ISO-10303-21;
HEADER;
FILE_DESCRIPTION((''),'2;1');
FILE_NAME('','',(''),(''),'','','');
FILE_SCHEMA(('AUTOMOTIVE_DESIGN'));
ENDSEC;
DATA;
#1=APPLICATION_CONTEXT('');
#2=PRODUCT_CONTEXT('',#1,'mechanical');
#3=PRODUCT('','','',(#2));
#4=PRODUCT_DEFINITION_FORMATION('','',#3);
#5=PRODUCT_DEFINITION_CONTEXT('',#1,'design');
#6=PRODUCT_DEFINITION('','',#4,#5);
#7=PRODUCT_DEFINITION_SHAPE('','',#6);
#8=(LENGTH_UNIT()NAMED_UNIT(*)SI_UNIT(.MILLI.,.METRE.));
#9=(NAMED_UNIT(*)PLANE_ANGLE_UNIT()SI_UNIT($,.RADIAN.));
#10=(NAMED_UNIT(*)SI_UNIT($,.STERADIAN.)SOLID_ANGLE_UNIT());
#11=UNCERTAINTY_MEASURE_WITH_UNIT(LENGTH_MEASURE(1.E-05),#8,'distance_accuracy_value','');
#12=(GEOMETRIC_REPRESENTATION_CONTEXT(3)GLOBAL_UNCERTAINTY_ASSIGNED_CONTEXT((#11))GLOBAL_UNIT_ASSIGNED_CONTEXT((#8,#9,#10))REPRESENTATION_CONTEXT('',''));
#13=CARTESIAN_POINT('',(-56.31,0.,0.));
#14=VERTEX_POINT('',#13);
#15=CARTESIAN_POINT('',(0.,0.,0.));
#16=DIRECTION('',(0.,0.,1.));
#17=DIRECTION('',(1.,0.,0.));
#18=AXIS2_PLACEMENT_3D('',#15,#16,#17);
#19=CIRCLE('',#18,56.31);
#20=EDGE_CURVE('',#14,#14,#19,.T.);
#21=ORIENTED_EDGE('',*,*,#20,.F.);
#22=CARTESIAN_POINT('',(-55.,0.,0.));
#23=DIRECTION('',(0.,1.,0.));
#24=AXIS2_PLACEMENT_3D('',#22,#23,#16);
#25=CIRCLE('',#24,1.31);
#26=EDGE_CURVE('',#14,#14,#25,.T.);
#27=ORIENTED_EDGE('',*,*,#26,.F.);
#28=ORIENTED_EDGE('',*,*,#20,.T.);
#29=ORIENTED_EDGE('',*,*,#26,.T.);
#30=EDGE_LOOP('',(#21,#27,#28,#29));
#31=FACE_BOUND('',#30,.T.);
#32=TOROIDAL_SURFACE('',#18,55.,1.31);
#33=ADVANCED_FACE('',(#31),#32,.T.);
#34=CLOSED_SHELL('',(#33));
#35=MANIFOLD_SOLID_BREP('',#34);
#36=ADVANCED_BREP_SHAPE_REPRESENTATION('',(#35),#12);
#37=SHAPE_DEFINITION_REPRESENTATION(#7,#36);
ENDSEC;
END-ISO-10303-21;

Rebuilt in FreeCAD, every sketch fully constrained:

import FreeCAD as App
import Part
import Sketcher
from FreeCAD import Vector
Q = App.Units.Quantity

doc = App.newDocument("Part")
params = doc.addObject("Spreadsheet::Sheet", "Params")
for row, (alias, value) in enumerate([
    ("sketch1_diameter", "2.62 mm"),
    ("sketch2_diameter", "110 mm"),
], start=1):
    params.set(f"A{row}", alias)
    params.set(f"B{row}", "=" + value)
    params.setAlias(f"B{row}", alias)

body = doc.addObject("PartDesign::Body", "Body")

# Sketch on XZ plane
sketch1 = body.newObject("Sketcher::SketchObject", "Sketch")
sketch1.AttachmentSupport = (doc.getObject("XZ_Plane"), [""])
sketch1.MapMode = "FlatFace"
sketch1.addGeometry(Part.Circle(Vector(-55, 0, 0), Vector(0, 0, 1), 1.3), False)
sketch1.addConstraint([
    Sketcher.Constraint("PointOnObject", 0, 3, -1),
    Sketcher.Constraint("Diameter", 0, Q("2.62 mm")),
    Sketcher.Constraint("DistanceX", 0, 3, -1, 1, Q("55 mm")),
])
sketch1.setExpression("Constraints[1]", "Params.sketch1_diameter")

# Sketch on XY plane
sketch2 = body.newObject("Sketcher::SketchObject", "Sketch001")
sketch2.AttachmentSupport = (doc.getObject("XY_Plane"), [""])
sketch2.MapMode = "FlatFace"
sketch2.addGeometry(Part.Circle(Vector(0, 0, 0), Vector(0, 0, 1), 55), False)
sketch2.addConstraint([
    Sketcher.Constraint("Coincident", 0, 3, -1, 1),
    Sketcher.Constraint("Diameter", 0, Q("110 mm")),
])
sketch2.setExpression("Constraints[1]", "Params.sketch2_diameter")
doc.recompute()

additivepipe = body.newObject("PartDesign::AdditivePipe", "AdditivePipe")
additivepipe.Profile = sketch1
additivepipe.Spine = (sketch2, ["Edge1"])

doc.recompute()
